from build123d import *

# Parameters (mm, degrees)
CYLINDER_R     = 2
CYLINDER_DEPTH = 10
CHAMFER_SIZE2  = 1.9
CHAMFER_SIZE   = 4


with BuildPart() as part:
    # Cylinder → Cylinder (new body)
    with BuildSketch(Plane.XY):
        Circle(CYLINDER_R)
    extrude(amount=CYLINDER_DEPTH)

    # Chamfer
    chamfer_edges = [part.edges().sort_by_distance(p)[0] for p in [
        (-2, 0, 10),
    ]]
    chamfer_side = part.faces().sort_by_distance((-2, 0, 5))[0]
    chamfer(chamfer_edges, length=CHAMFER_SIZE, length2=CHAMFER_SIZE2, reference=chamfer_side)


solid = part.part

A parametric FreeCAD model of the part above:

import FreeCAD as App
import Part
import Sketcher
from FreeCAD import Vector
Q = App.Units.Quantity


def edges_at(feature, points):
    """Names of the edges that pass closest to the given points."""
    edges = feature.Shape.Edges
    near = lambda p: min(range(len(edges)), key=lambda i: edges[i].distToShape(Part.Vertex(*p))[0])
    return sorted({f"Edge{near(p) + 1}" for p in points})

doc = App.newDocument("Part")
body = doc.addObject("PartDesign::Body", "Body")

# Sketch on XY plane
sketch1 = body.newObject("Sketcher::SketchObject", "Sketch")
sketch1.AttachmentSupport = (doc.getObject("XY_Plane"), [""])
sketch1.MapMode = "FlatFace"
sketch1.addGeometry(Part.Circle(Vector(0, 0, 0), Vector(0, 0, 1), 2), False)
sketch1.addConstraint(Sketcher.Constraint("Coincident", 0, 3, -1, 1))
sketch1.addConstraint(Sketcher.Constraint("Diameter", 0, Q("4 mm")))
pad1 = body.newObject("PartDesign::Pad", "Pad")
pad1.Profile = sketch1
pad1.Length = 10
doc.recompute()

chamfer = body.newObject("PartDesign::Chamfer", "Chamfer")
chamfer.Base = (pad1, edges_at(pad1, [(-2, 0, 10)]))
chamfer.ChamferType = "Two distances"
chamfer.Size = 4
chamfer.Size2 = 1.9

doc.recompute()
